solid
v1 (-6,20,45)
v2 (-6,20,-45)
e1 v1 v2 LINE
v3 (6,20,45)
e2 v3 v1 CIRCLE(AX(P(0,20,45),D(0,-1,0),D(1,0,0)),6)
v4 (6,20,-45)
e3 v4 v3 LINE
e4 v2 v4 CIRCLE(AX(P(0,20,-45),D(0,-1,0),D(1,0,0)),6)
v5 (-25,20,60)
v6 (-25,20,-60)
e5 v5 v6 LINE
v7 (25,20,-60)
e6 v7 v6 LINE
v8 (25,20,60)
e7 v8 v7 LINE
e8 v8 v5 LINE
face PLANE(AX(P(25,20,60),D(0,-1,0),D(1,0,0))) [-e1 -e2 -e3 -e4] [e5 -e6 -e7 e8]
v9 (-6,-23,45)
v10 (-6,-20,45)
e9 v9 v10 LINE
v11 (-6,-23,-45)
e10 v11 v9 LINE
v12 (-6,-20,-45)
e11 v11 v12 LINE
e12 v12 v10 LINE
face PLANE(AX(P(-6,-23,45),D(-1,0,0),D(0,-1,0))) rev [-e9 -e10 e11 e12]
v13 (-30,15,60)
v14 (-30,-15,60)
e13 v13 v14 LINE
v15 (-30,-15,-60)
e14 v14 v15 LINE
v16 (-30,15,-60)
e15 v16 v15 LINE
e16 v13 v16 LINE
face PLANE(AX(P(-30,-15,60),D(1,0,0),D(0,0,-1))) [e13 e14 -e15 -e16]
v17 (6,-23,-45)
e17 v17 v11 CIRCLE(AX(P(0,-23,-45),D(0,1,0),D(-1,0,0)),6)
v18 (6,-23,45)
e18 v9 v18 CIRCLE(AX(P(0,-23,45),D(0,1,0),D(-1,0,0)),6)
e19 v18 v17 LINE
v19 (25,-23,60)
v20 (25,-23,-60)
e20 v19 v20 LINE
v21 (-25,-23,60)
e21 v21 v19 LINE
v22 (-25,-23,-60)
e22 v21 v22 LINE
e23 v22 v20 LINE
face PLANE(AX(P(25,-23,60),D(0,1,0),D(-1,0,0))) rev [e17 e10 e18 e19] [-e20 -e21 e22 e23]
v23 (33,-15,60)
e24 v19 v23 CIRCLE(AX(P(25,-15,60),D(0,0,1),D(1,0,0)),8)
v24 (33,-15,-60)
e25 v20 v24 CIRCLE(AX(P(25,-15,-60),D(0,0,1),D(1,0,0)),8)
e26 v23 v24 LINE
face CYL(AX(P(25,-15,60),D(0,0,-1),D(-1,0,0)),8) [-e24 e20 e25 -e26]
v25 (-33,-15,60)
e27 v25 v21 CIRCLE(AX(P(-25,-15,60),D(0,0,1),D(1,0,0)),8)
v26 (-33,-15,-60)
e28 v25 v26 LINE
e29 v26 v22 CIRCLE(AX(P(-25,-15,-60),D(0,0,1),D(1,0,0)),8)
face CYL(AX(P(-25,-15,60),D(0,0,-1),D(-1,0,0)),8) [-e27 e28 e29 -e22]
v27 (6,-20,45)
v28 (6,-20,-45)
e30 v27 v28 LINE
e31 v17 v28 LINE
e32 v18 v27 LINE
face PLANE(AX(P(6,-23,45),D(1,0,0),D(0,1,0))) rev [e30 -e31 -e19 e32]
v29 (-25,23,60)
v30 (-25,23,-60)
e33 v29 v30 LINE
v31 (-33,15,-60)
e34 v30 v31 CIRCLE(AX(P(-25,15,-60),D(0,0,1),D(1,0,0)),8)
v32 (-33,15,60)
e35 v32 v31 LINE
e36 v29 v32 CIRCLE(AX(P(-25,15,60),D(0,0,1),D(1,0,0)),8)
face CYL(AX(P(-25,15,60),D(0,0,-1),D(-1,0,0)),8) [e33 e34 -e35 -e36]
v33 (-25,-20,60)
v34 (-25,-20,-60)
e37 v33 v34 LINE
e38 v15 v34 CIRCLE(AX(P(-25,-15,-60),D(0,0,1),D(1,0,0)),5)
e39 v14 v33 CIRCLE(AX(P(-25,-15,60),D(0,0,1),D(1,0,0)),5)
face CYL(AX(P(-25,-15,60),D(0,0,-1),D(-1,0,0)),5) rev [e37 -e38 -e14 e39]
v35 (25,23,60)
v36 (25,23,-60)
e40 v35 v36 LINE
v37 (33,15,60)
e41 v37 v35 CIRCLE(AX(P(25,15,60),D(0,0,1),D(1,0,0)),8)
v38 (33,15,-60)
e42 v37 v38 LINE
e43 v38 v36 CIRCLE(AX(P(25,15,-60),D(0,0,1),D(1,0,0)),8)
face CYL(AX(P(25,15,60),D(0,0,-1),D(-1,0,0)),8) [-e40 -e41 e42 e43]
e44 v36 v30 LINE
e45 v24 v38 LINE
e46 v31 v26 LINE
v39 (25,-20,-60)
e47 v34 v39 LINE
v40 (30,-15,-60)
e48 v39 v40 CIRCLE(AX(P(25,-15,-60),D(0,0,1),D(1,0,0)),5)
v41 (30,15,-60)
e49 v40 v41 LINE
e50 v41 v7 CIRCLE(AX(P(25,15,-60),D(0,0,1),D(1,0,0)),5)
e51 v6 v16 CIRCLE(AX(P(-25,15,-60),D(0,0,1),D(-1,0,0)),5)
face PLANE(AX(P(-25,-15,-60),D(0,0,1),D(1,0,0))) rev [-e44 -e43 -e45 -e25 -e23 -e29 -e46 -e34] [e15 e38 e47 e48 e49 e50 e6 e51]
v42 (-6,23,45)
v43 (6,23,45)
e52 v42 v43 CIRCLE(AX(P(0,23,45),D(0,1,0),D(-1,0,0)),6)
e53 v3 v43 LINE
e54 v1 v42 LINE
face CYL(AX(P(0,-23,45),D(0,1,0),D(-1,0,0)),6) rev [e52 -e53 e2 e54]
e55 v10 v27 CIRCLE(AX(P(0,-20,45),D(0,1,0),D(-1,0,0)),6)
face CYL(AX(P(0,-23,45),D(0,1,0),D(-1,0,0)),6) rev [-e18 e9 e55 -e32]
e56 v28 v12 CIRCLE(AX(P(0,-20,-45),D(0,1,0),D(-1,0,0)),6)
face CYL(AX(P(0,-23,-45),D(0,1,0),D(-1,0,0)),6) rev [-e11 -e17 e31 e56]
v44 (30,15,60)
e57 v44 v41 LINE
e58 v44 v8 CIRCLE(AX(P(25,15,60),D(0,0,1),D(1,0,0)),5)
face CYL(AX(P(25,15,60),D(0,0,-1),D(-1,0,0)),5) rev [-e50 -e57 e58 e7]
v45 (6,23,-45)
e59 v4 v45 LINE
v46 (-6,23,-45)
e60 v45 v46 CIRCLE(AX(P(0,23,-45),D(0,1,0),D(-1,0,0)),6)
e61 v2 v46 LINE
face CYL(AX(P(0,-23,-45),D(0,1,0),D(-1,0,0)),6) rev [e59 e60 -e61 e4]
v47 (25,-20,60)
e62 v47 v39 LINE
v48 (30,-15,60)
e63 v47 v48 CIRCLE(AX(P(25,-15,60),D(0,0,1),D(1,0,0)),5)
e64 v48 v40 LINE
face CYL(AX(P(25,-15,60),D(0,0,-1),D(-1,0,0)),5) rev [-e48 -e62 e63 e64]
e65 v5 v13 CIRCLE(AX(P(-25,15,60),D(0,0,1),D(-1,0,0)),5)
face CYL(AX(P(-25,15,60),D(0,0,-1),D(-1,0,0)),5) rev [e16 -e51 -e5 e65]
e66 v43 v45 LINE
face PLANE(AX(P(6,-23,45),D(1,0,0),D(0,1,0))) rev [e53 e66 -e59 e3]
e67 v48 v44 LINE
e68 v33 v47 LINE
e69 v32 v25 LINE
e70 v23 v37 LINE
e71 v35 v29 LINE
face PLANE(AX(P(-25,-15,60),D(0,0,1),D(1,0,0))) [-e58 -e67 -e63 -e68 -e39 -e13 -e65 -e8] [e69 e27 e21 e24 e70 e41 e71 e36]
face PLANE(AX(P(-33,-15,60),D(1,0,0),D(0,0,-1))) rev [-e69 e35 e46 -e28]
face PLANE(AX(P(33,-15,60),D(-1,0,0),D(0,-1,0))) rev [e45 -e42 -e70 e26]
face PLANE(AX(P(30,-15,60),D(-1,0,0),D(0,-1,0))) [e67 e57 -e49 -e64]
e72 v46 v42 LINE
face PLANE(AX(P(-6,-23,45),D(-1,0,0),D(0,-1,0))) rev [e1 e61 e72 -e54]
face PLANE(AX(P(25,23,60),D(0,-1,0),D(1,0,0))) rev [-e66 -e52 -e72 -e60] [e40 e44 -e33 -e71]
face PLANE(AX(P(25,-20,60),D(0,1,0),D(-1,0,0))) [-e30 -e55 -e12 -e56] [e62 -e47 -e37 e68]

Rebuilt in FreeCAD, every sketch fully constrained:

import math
import FreeCAD as App
import Part
import Sketcher
from FreeCAD import Vector
Q = App.Units.Quantity

doc = App.newDocument("Part")
body = doc.addObject("PartDesign::Body", "Body")

# Sketch on XY plane
sketch1 = doc.addObject("Sketcher::SketchObject", "Sketch")
body.addObject(sketch1)
sketch1.AttachmentSupport = (doc.XY_Plane, [""])
sketch1.MapMode = "FlatFace"
sketch1.addGeometry(Part.LineSegment(Vector(25, 23, 0), Vector(-25, 23, 0)), False)
sketch1.addGeometry(Part.ArcOfCircle(Part.Circle(Vector(-25, 15, 0), Vector(0, 0, 1), 8), math.radians(90), math.radians(180)), False)
sketch1.addGeometry(Part.LineSegment(Vector(-33, 15, 0), Vector(-33, -15, 0)), False)
sketch1.addGeometry(Part.ArcOfCircle(Part.Circle(Vector(-25, -15, 0), Vector(0, 0, 1), 8), math.radians(-180), math.radians(-90)), False)
sketch1.addGeometry(Part.LineSegment(Vector(-25, -23, 0), Vector(25, -23, 0)), False)
sketch1.addGeometry(Part.ArcOfCircle(Part.Circle(Vector(25, -15, 0), Vector(0, 0, 1), 8), math.radians(-90), math.radians(0)), False)
sketch1.addGeometry(Part.LineSegment(Vector(33, -15, 0), Vector(33, 15, 0)), False)
sketch1.addGeometry(Part.ArcOfCircle(Part.Circle(Vector(25, 15, 0), Vector(0, 0, 1), 8), math.radians(0), math.radians(90)), False)
sketch1.addGeometry(Part.LineSegment(Vector(-25, 20, 0), Vector(25, 20, 0)), False)
sketch1.addGeometry(Part.ArcOfCircle(Part.Circle(Vector(25, 15, 0), Vector(0, 0, 1), 5), math.radians(0), math.radians(90)), False)
sketch1.addGeometry(Part.LineSegment(Vector(30, 15, 0), Vector(30, -15, 0)), False)
sketch1.addGeometry(Part.ArcOfCircle(Part.Circle(Vector(25, -15, 0), Vector(0, 0, 1), 5), math.radians(-90), math.radians(0)), False)
sketch1.addGeometry(Part.LineSegment(Vector(25, -20, 0), Vector(-25, -20, 0)), False)
sketch1.addGeometry(Part.ArcOfCircle(Part.Circle(Vector(-25, -15, 0), Vector(0, 0, 1), 5), math.radians(180), math.radians(270)), False)
sketch1.addGeometry(Part.LineSegment(Vector(-30, -15, 0), Vector(-30, 15, 0)), False)
sketch1.addGeometry(Part.ArcOfCircle(Part.Circle(Vector(-25, 15, 0), Vector(0, 0, 1), 5), math.radians(90), math.radians(180)), False)
sketch1.addConstraint(Sketcher.Constraint("Tangent", 0, 2, 1, 1))
sketch1.addConstraint(Sketcher.Constraint("Tangent", 1, 2, 2, 1))
sketch1.addConstraint(Sketcher.Constraint("Tangent", 2, 2, 3, 1))
sketch1.addConstraint(Sketcher.Constraint("Tangent", 3, 2, 4, 1))
sketch1.addConstraint(Sketcher.Constraint("Tangent", 4, 2, 5, 1))
sketch1.addConstraint(Sketcher.Constraint("Tangent", 5, 2, 6, 1))
sketch1.addConstraint(Sketcher.Constraint("Tangent", 6, 2, 7, 1))
sketch1.addConstraint(Sketcher.Constraint("Tangent", 7, 2, 0, 1))
sketch1.addConstraint(Sketcher.Constraint("Tangent", 8, 2, 9, 2))
sketch1.addConstraint(Sketcher.Constraint("Tangent", 9, 1, 10, 1))
sketch1.addConstraint(Sketcher.Constraint("Tangent", 10, 2, 11, 2))
sketch1.addConstraint(Sketcher.Constraint("Tangent", 11, 1, 12, 1))
sketch1.addConstraint(Sketcher.Constraint("Tangent", 12, 2, 13, 2))
sketch1.addConstraint(Sketcher.Constraint("Tangent", 13, 1, 14, 1))
sketch1.addConstraint(Sketcher.Constraint("Tangent", 14, 2, 15, 2))
sketch1.addConstraint(Sketcher.Constraint("Tangent", 15, 1, 8, 1))
sketch1.addConstraint(Sketcher.Constraint("Horizontal", 0))
sketch1.addConstraint(Sketcher.Constraint("Vertical", 2))
sketch1.addConstraint(Sketcher.Constraint("Horizontal", 4))
sketch1.addConstraint(Sketcher.Constraint("Vertical", 6))
sketch1.addConstraint(Sketcher.Constraint("Horizontal", 8))
sketch1.addConstraint(Sketcher.Constraint("Vertical", 10))
sketch1.addConstraint(Sketcher.Constraint("Horizontal", 12))
sketch1.addConstraint(Sketcher.Constraint("Vertical", 14))
sketch1.addConstraint(Sketcher.Constraint("Coincident", 9, 3, 7, 3))
sketch1.addConstraint(Sketcher.Constraint("Coincident", 11, 3, 5, 3))
sketch1.addConstraint(Sketcher.Constraint("Coincident", 13, 3, 3, 3))
sketch1.addConstraint(Sketcher.Constraint("Equal", 1, 3))
sketch1.addConstraint(Sketcher.Constraint("Equal", 3, 5))
sketch1.addConstraint(Sketcher.Constraint("Equal", 5, 7))
sketch1.addConstraint(Sketcher.Constraint("Equal", 13, 15))
sketch1.addConstraint(Sketcher.Constraint("Symmetric", 1, 3, 5, 3, -1, 1))
sketch1.addConstraint(Sketcher.Constraint("Radius", 1, Q("8 mm")))
sketch1.addConstraint(Sketcher.Constraint("Radius", 9, Q("5 mm")))
sketch1.addConstraint(Sketcher.Constraint("DistanceX", 0, 2, 0, 1, Q("50 mm")))
sketch1.addConstraint(Sketcher.Constraint("DistanceY", 2, 2, 2, 1, Q("30 mm")))
pad1 = doc.addObject("PartDesign::Pad", "Pad")
body.addObject(pad1)
pad1.Profile = sketch1
pad1.Length = 120
pad1.Midplane = True

# Sketch on XZ plane
sketch2 = doc.addObject("Sketcher::SketchObject", "Sketch001")
body.addObject(sketch2)
sketch2.AttachmentSupport = (doc.XZ_Plane, [""])
sketch2.MapMode = "FlatFace"
sketch2.AttachmentOffset = App.Placement(Vector(0, 0, -23), App.Rotation())
sketch2.addGeometry(Part.LineSegment(Vector(-6, -45, 0), Vector(-6, 45, 0)), False)
sketch2.addGeometry(Part.ArcOfCircle(Part.Circle(Vector(0, 45, 0), Vector(0, 0, 1), 6), math.radians(0), math.radians(180)), False)
sketch2.addGeometry(Part.LineSegment(Vector(6, 45, 0), Vector(6, -45, 0)), False)
sketch2.addGeometry(Part.ArcOfCircle(Part.Circle(Vector(0, -45, 0), Vector(0, 0, 1), 6), math.radians(180), math.radians(360)), False)
sketch2.addConstraint(Sketcher.Constraint("Tangent", 0, 2, 1, 2))
sketch2.addConstraint(Sketcher.Constraint("Tangent", 1, 1, 2, 1))
sketch2.addConstraint(Sketcher.Constraint("Tangent", 2, 2, 3, 2))
sketch2.addConstraint(Sketcher.Constraint("Tangent", 3, 1, 0, 1))
sketch2.addConstraint(Sketcher.Constraint("Vertical", 0))
sketch2.addConstraint(Sketcher.Constraint("Vertical", 2))
sketch2.addConstraint(Sketcher.Constraint("Symmetric", 1, 3, 3, 3, -1, 1))
sketch2.addConstraint(Sketcher.Constraint("Radius", 1, Q("6 mm")))
sketch2.addConstraint(Sketcher.Constraint("DistanceY", 0, 1, 0, 2, Q("90 mm")))
pocket1 = doc.addObject("PartDesign::Pocket", "Pocket")
body.addObject(pocket1)
pocket1.Profile = sketch2
pocket1.Type = "ThroughAll"
pocket1.Reversed = True

doc.recompute()
